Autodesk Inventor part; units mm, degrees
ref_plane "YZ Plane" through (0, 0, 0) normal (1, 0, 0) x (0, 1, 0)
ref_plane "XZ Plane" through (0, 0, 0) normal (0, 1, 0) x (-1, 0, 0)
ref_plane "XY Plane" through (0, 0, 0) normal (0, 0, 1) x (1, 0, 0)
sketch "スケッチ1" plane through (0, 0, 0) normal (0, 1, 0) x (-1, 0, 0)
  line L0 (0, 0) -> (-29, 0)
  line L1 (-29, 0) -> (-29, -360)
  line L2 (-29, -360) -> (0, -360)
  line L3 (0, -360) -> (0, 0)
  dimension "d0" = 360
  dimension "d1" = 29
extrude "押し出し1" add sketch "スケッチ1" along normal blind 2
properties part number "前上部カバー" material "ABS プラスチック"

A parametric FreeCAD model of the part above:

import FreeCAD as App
import Part
import Sketcher

V = App.Vector


def add_polygon(sketch, points):
    """Adds a closed chain of lines whose ends are joined by coincident constraints."""
    first, n = sketch.GeometryCount, len(points)
    for a, b in zip(points, points[1:] + points[:1]):
        sketch.addGeometry(Part.LineSegment(App.Vector(*a, 0), App.Vector(*b, 0)), False)
    for i in range(n):
        sketch.addConstraint(Sketcher.Constraint("Coincident", first + i, 2, first + (i + 1) % n, 1))

doc = App.newDocument("Part")
params = doc.addObject("Spreadsheet::Sheet", "Params")
for row, (alias, value) in enumerate([
    ("sketch1_width", "29 mm"),
    ("sketch1_height", "360 mm"),
    ("pad1_length", "2 mm"),
], start=1):
    params.set(f"A{row}", alias)
    params.set(f"B{row}", "=" + value)
    params.setAlias(f"B{row}", alias)

body = doc.addObject("PartDesign::Body", "Body")

sketch1 = doc.addObject("Sketcher::SketchObject", "Sketch")
body.addObject(sketch1)
sketch1.AttachmentSupport = (doc.XZ_Plane, [""])
sketch1.MapMode = "FlatFace"
add_polygon(sketch1, [(0, -360), (0, 0), (29, 0), (29, -360)])
sketch1.addConstraint(Sketcher.Constraint("Vertical", 0))
sketch1.addConstraint(Sketcher.Constraint("Horizontal", 1))
sketch1.addConstraint(Sketcher.Constraint("Vertical", 2))
sketch1.addConstraint(Sketcher.Constraint("Horizontal", 3))
sketch1.addConstraint(Sketcher.Constraint("Coincident", 0, 2, -1, 1))
sketch1.addConstraint(Sketcher.Constraint("DistanceX", 1, 1, 1, 2, 29.0))
sketch1.addConstraint(Sketcher.Constraint("DistanceY", 0, 1, 0, 2, 360.0))
sketch1.setExpression("Constraints[9]", "Params.sketch1_width")
sketch1.setExpression("Constraints[10]", "Params.sketch1_height")
pad1 = doc.addObject("PartDesign::Pad", "Pad")
body.addObject(pad1)
pad1.Profile = sketch1
pad1.setExpression("Length", "Params.pad1_length")
pad1.Reversed = True

doc.recompute()
